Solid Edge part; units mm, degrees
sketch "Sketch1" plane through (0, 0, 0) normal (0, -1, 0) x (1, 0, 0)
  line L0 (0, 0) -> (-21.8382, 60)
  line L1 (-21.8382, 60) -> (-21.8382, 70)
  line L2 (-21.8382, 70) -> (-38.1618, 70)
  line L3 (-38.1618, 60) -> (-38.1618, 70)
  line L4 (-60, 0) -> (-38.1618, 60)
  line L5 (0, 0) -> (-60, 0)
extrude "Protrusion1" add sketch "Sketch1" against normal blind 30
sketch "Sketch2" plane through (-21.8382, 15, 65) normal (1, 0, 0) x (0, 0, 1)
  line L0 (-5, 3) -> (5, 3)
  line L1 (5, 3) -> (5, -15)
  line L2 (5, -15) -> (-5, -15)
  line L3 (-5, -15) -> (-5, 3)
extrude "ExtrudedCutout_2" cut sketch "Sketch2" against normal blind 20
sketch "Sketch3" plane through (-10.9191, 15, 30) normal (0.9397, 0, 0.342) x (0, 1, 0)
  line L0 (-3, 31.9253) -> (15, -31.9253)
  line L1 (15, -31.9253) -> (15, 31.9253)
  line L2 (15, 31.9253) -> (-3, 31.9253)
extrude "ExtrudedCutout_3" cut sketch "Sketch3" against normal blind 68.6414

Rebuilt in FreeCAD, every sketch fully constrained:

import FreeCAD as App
import Part
import Sketcher

V = App.Vector
Q = App.Units.Quantity


def add_polygon(sketch, points):
    """Adds a closed chain of lines whose ends are joined by coincident constraints."""
    first, n = sketch.GeometryCount, len(points)
    for a, b in zip(points, points[1:] + points[:1]):
        sketch.addGeometry(Part.LineSegment(App.Vector(*a, 0), App.Vector(*b, 0)), False)
    for i in range(n):
        sketch.addConstraint(Sketcher.Constraint("Coincident", first + i, 2, first + (i + 1) % n, 1))

doc = App.newDocument("Part")
body = doc.addObject("PartDesign::Body", "Body")

# Sketch on XZ plane
sketch1 = body.newObject("Sketcher::SketchObject", "Sketch")
sketch1.AttachmentSupport = (doc.getObject("XZ_Plane"), [""])
sketch1.MapMode = "FlatFace"
add_polygon(sketch1, [(-60, 0), (0, 0), (-22, 60), (-22, 70), (-38, 70), (-38, 60)])  # lines 0-5
sketch1.addConstraint([
    Sketcher.Constraint("Horizontal", 0),
    Sketcher.Constraint("Vertical", 2),
    Sketcher.Constraint("Horizontal", 3),
    Sketcher.Constraint("Vertical", 4),
    Sketcher.Constraint("Coincident", 0, 2, -1, 1),
    Sketcher.Constraint("Horizontal", 1, 2, 4, 2),
    Sketcher.Constraint("Equal", 1, 5),
    Sketcher.Constraint("DistanceX", 0, 1, 0, 2, 60.0),
    Sketcher.Constraint("DistanceY", 2, 1, 2, 2, 10.0),
    Sketcher.Constraint("Angle", 1, Q("110 deg")),
    Sketcher.Constraint("DistanceY", -1, 1, 1, 2, 60.0),
])
pad1 = body.newObject("PartDesign::Pad", "Pad")
pad1.Profile = sketch1
pad1.Length = 30
pad1.Reversed = True

# Sketch on YZ plane
sketch2 = body.newObject("Sketcher::SketchObject", "Sketch001")
sketch2.AttachmentSupport = (doc.getObject("YZ_Plane"), [""])
sketch2.MapMode = "FlatFace"
sketch2.AttachmentOffset = App.Placement(V(0, 0, -21.8382), App.Rotation())
add_polygon(sketch2, [(12, 70), (12, 60), (30, 60), (30, 70)])  # lines 0-3
sketch2.addConstraint([
    Sketcher.Constraint("Vertical", 0),
    Sketcher.Constraint("Horizontal", 1),
    Sketcher.Constraint("Vertical", 2),
    Sketcher.Constraint("Horizontal", 3),
    Sketcher.Constraint("DistanceX", 1, 1, 1, 2, 18.0),
    Sketcher.Constraint("DistanceY", 0, 2, 0, 1, 10.0),
    Sketcher.Constraint("DistanceX", -1, 1, 0, 2, 12.0),
    Sketcher.Constraint("DistanceY", -1, 1, 0, 2, 60.0),
])
pocket1 = body.newObject("PartDesign::Pocket", "Pocket")
pocket1.Profile = sketch2
pocket1.Length = 20

# Sketch on an angled plane
sketch3 = body.newObject("Sketcher::SketchObject", "Sketch002")
sketch3.Placement = App.Placement(V(-10.9191, 15, 30), App.Rotation(V(0, 1, 0), V(-0.342020143, 0, 0.939692621), V(0.939692621, 0, 0.342020143), "ZXY"))
add_polygon(sketch3, [(15, 32), (-3, 32), (15, -32)])  # lines 0-2
sketch3.addConstraint([
    Sketcher.Constraint("Horizontal", 0),
    Sketcher.Constraint("Vertical", 2),
    Sketcher.Constraint("DistanceX", 0, 2, 0, 1, 18.0),
    Sketcher.Constraint("DistanceX", 0, 2, -1, 1, 3.0),
    Sketcher.Constraint("DistanceY", 2, 1, 2, 2, 63.8506),
    Sketcher.Constraint("DistanceY", -1, 1, 0, 2, 31.9253),
])
pocket2 = body.newObject("PartDesign::Pocket", "Pocket001")
pocket2.Profile = sketch3
pocket2.Length = 68.6414

doc.recompute()
